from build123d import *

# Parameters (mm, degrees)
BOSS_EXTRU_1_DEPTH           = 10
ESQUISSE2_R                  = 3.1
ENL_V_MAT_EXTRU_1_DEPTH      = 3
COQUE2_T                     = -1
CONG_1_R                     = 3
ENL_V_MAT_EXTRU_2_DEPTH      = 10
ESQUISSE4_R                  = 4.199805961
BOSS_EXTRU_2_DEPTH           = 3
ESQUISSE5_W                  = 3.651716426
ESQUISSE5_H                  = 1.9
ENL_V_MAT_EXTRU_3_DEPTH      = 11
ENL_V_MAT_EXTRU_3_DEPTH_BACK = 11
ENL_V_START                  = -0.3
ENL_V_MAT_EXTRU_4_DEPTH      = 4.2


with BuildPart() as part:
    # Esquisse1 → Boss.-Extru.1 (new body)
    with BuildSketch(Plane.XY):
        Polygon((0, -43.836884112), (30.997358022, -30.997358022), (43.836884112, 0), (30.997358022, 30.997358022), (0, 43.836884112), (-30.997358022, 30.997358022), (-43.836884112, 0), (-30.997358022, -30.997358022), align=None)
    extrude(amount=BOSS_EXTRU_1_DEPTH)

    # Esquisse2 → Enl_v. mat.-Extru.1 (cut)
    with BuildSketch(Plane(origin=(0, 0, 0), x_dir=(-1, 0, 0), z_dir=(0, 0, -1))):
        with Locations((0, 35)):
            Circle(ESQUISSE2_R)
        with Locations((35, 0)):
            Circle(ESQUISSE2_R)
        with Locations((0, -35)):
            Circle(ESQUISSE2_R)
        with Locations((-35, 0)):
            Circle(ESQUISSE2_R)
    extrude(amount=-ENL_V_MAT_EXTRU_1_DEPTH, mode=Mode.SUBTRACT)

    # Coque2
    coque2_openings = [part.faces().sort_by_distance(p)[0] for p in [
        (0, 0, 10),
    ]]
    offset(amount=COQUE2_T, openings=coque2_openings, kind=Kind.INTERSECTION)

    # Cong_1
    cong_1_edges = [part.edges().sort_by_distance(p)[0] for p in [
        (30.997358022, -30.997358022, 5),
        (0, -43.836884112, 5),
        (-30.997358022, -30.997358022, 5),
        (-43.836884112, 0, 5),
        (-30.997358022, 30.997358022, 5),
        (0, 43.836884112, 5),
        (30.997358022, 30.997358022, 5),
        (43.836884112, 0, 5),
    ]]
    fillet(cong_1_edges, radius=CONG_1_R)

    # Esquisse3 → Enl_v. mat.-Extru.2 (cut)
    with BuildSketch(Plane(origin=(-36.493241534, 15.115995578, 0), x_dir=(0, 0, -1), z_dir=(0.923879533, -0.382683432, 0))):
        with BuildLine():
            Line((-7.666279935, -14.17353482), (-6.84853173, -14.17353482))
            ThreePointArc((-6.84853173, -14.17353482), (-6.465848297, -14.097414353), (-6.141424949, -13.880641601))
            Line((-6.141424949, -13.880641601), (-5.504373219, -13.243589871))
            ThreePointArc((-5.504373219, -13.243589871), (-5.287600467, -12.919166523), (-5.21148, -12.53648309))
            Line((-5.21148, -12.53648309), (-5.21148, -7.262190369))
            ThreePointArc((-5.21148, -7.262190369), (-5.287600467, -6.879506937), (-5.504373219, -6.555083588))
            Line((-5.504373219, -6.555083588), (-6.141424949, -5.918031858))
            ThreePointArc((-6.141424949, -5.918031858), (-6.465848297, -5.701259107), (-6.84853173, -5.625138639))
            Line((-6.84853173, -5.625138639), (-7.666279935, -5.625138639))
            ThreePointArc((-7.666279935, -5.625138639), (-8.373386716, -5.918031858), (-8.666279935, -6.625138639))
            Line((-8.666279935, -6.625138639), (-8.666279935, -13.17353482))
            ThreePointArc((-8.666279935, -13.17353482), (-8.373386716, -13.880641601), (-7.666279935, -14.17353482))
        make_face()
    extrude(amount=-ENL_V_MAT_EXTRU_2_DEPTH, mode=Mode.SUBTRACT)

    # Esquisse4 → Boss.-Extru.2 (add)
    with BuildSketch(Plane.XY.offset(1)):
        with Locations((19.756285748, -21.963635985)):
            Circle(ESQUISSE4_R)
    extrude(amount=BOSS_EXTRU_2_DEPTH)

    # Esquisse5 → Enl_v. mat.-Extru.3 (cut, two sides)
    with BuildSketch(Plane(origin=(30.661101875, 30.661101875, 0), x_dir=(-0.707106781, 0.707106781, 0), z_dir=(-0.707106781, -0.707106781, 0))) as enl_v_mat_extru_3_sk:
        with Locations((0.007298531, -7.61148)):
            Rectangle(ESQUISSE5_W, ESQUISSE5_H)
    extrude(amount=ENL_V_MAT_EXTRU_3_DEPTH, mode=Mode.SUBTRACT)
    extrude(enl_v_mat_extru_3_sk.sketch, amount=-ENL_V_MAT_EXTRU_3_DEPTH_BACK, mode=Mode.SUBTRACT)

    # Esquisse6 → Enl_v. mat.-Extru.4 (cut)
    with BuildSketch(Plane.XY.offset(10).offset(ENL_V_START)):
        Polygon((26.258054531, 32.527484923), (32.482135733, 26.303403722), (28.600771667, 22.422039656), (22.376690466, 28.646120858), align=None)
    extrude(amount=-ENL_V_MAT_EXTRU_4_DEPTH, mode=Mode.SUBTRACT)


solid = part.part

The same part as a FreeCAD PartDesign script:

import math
import FreeCAD as App
import Part
import Sketcher
Q = App.Units.Quantity


def edges_at(feature, points):
    """Names of the edges that pass closest to the given points."""
    edges = feature.Shape.Edges
    near = lambda p: min(range(len(edges)), key=lambda i: edges[i].distToShape(Part.Vertex(*p))[0])
    return sorted({f"Edge{near(p) + 1}" for p in points})


def faces_at(feature, points):
    """Names of the faces that lie closest to the given points."""
    faces = feature.Shape.Faces
    near = lambda p: min(range(len(faces)), key=lambda i: faces[i].distToShape(Part.Vertex(*p))[0])
    return sorted({f"Face{near(p) + 1}" for p in points})


def add_polygon(sketch, points):
    """Adds a closed chain of lines whose ends are joined by coincident constraints."""
    first, n = sketch.GeometryCount, len(points)
    for a, b in zip(points, points[1:] + points[:1]):
        sketch.addGeometry(Part.LineSegment(App.Vector(*a, 0), App.Vector(*b, 0)), False)
    for i in range(n):
        sketch.addConstraint(Sketcher.Constraint("Coincident", first + i, 2, first + (i + 1) % n, 1))

doc = App.newDocument("Part")
body = doc.addObject("PartDesign::Body", "Body")

# Sketch on XY plane
sketch1 = body.newObject("Sketcher::SketchObject", "Sketch")
sketch1.AttachmentSupport = (doc.getObject("XY_Plane"), [""])
sketch1.MapMode = "FlatFace"
add_polygon(sketch1, [(0, -44), (31, -31), (44, 0), (31, 31), (0, 44), (-31, 31), (-44, 0), (-31, -31)])  # lines 0-7
sketch1.addConstraint([
    Sketcher.Constraint("Symmetric", 0, 2, 4, 2, -1, 1),
    Sketcher.Constraint("Symmetric", 1, 2, 5, 2, -1, 1),
    Sketcher.Constraint("Symmetric", 2, 2, 6, 2, -1, 1),
    Sketcher.Constraint("Symmetric", 3, 2, 7, 2, -1, 1),
    Sketcher.Constraint("Symmetric", 2, 2, 4, 2, -2),
    Sketcher.Constraint("PointOnObject", 1, 2, -1),
    Sketcher.Constraint("PointOnObject", 3, 2, -2),
    Sketcher.Constraint("Perpendicular", 0, 2),
    Sketcher.Constraint("Equal", 0, 1),
    Sketcher.Constraint("Angle", 0, Q("22.5 deg")),
    Sketcher.Constraint("Distance", 0, 33.551299),
])
pad1 = body.newObject("PartDesign::Pad", "Pad")
pad1.Profile = sketch1
pad1.Length = 10

# Sketch on XY plane
sketch2 = body.newObject("Sketcher::SketchObject", "Sketch001")
sketch2.AttachmentSupport = (doc.getObject("XY_Plane"), [""])
sketch2.MapMode = "FlatFace"
sketch2.addGeometry([
    Part.Circle(App.Vector(0, 35, 0), App.Vector(0, 0, 1), 3.1),
    Part.Circle(App.Vector(-35, 0, 0), App.Vector(0, 0, 1), 3.1),
    Part.Circle(App.Vector(0, -35, 0), App.Vector(0, 0, 1), 3.1),
    Part.Circle(App.Vector(35, 0, 0), App.Vector(0, 0, 1), 3.1),
], False)
sketch2.addConstraint([
    Sketcher.Constraint("Equal", 0, 1),
    Sketcher.Constraint("Equal", 1, 2),
    Sketcher.Constraint("Equal", 2, 3),
    Sketcher.Constraint("Symmetric", 0, 3, 2, 3, -1, 1),
    Sketcher.Constraint("Symmetric", 1, 3, 3, 3, -1, 1),
    Sketcher.Constraint("PointOnObject", 0, 3, -2),
    Sketcher.Constraint("PointOnObject", 1, 3, -1),
    Sketcher.Constraint("Diameter", 0, 6.2),
    Sketcher.Constraint("DistanceY", -1, 1, 0, 3, 35.0),
    Sketcher.Constraint("DistanceX", 1, 3, -1, 1, 35.0),
])
pocket1 = body.newObject("PartDesign::Pocket", "Pocket")
pocket1.Profile = sketch2
pocket1.Length = 3
pocket1.Reversed = True
doc.recompute()

thickness = body.newObject("PartDesign::Thickness", "Thickness")
thickness.Base = (pocket1, faces_at(pocket1, [(0, 0, 10)]))
thickness.Value = 1
thickness.Reversed = True
thickness.Join = "Intersection"
doc.recompute()

fillet = body.newObject("PartDesign::Fillet", "Fillet")
fillet.Base = (thickness, edges_at(thickness, [
    (30.997, -30.997, 5),
    (0, -43.837, 5),
    (-30.997, -30.997, 5),
    (-43.837, 0, 5),
    (-30.997, 30.997, 5),
    (0, 43.837, 5),
    (30.997, 30.997, 5),
    (43.837, 0, 5),
]))
fillet.Radius = 3

# Sketch on an angled plane
sketch3 = body.newObject("Sketcher::SketchObject", "Sketch002")
sketch3.Placement = App.Placement(App.Vector(-36.493242, 15.115996, 0), App.Rotation(App.Vector(0, 0, -1), App.Vector(0.382683432, 0.923879533, 0), App.Vector(0.923879533, -0.382683432, 0), "ZXY"))
sketch3.addGeometry([
    Part.LineSegment(App.Vector(-7.7, -14.2, 0), App.Vector(-6.8, -14.2, 0)),  # 0
    Part.ArcOfCircle(Part.Circle(App.Vector(-6.8, -13.2, 0), App.Vector(0, 0, 1), 1), math.radians(-90), math.radians(-45)),  # 1
    Part.LineSegment(App.Vector(-6.1, -13.9, 0), App.Vector(-5.5, -13.2, 0)),  # 2
    Part.ArcOfCircle(Part.Circle(App.Vector(-6.2, -12.5, 0), App.Vector(0, 0, 1), 1), math.radians(-45), math.radians(0)),  # 3
    Part.LineSegment(App.Vector(-5.2, -12.5, 0), App.Vector(-5.2, -7.3, 0)),  # 4
    Part.ArcOfCircle(Part.Circle(App.Vector(-6.2, -7.3, 0), App.Vector(0, 0, 1), 1), math.radians(0), math.radians(45)),  # 5
    Part.LineSegment(App.Vector(-5.5, -6.6, 0), App.Vector(-6.1, -5.9, 0)),  # 6
    Part.ArcOfCircle(Part.Circle(App.Vector(-6.8, -6.6, 0), App.Vector(0, 0, 1), 1), math.radians(45), math.radians(90)),  # 7
    Part.LineSegment(App.Vector(-6.8, -5.6, 0), App.Vector(-7.7, -5.6, 0)),  # 8
    Part.ArcOfCircle(Part.Circle(App.Vector(-7.7, -6.6, 0), App.Vector(0, 0, 1), 1), math.radians(90), math.radians(180)),  # 9
    Part.LineSegment(App.Vector(-8.7, -6.6, 0), App.Vector(-8.7, -13.2, 0)),  # 10
    Part.ArcOfCircle(Part.Circle(App.Vector(-7.7, -13.2, 0), App.Vector(0, 0, 1), 1), math.radians(-180), math.radians(-90)),  # 11
], False)
sketch3.addConstraint([
    Sketcher.Constraint("Tangent", 0, 2, 1, 1),
    Sketcher.Constraint("Tangent", 1, 2, 2, 1),
    Sketcher.Constraint("Tangent", 2, 2, 3, 1),
    Sketcher.Constraint("Tangent", 3, 2, 4, 1),
    Sketcher.Constraint("Tangent", 4, 2, 5, 1),
    Sketcher.Constraint("Tangent", 5, 2, 6, 1),
    Sketcher.Constraint("Tangent", 6, 2, 7, 1),
    Sketcher.Constraint("Tangent", 7, 2, 8, 1),
    Sketcher.Constraint("Tangent", 8, 2, 9, 1),
    Sketcher.Constraint("Tangent", 9, 2, 10, 1),
    Sketcher.Constraint("Tangent", 10, 2, 11, 1),
    Sketcher.Constraint("Tangent", 11, 2, 0, 1),
    Sketcher.Constraint("Horizontal", 0),
    Sketcher.Constraint("Vertical", 4),
    Sketcher.Constraint("Horizontal", 8),
    Sketcher.Constraint("Vertical", 10),
    Sketcher.Constraint("Equal", 1, 3),
    Sketcher.Constraint("Equal", 3, 5),
    Sketcher.Constraint("Equal", 5, 7),
    Sketcher.Constraint("Equal", 7, 9),
    Sketcher.Constraint("Equal", 9, 11),
    Sketcher.Constraint("Perpendicular", 2, 6),
    Sketcher.Constraint("Vertical", 1, 3, 7, 3),
    Sketcher.Constraint("Vertical", 2, 2, 5, 2),
    Sketcher.Constraint("Radius", 1, 1.0),
    Sketcher.Constraint("DistanceX", 0, 1, 0, 2, 0.817748),
    Sketcher.Constraint("DistanceX", 9, 3, 5, 3, 1.4548),
    Sketcher.Constraint("DistanceY", 3, 2, 5, 2, 5.9814),
    Sketcher.Constraint("DistanceX", 1, 3, -1, 1, 6.848532),
    Sketcher.Constraint("DistanceY", 5, 3, -1, 1, 7.26219),
])
pocket2 = body.newObject("PartDesign::Pocket", "Pocket001")
pocket2.Profile = sketch3
pocket2.Length = 10

# Sketch on XY plane
sketch4 = body.newObject("Sketcher::SketchObject", "Sketch003")
sketch4.AttachmentSupport = (doc.getObject("XY_Plane"), [""])
sketch4.MapMode = "FlatFace"
sketch4.AttachmentOffset = App.Placement(App.Vector(0, 0, 1), App.Rotation())
sketch4.addGeometry(Part.Circle(App.Vector(19.8, -22, 0), App.Vector(0, 0, 1), 4.2), False)
sketch4.addConstraint([
    Sketcher.Constraint("Diameter", 0, 8.399612),
    Sketcher.Constraint("DistanceX", -1, 1, 0, 3, 19.756286),
    Sketcher.Constraint("DistanceY", 0, 3, -1, 1, 21.963636),
])
pad2 = body.newObject("PartDesign::Pad", "Pad001")
pad2.Profile = sketch4
pad2.Length = 3

# Sketch on an angled plane
sketch5 = body.newObject("Sketcher::SketchObject", "Sketch004")
sketch5.Placement = App.Placement(App.Vector(30.661102, 30.661102, 0), App.Rotation(App.Vector(-0.707106781, 0.707106781, 0), App.Vector(0, 0, -0.999999999), App.Vector(-0.707106781, -0.707106781, 0), "ZXY"))
add_polygon(sketch5, [(-1.8, -6.7), (-1.8, -8.6), (1.8, -8.6), (1.8, -6.7)])  # lines 0-3
sketch5.addConstraint([
    Sketcher.Constraint("Vertical", 0),
    Sketcher.Constraint("Horizontal", 1),
    Sketcher.Constraint("Vertical", 2),
    Sketcher.Constraint("Horizontal", 3),
    Sketcher.Constraint("DistanceY", 0, 2, 0, 1, 1.9),
    Sketcher.Constraint("DistanceX", 1, 1, 1, 2, 3.651716),
    Sketcher.Constraint("DistanceX", 0, 2, -1, 1, 1.81856),
    Sketcher.Constraint("DistanceY", 0, 2, -1, 1, 8.56148),
])
pocket3 = body.newObject("PartDesign::Pocket", "Pocket002")
pocket3.Profile = sketch5
pocket3.Type = "TwoLengths"
pocket3.Length = 11
pocket3.Length2 = 11
pocket3.Reversed = True

# Sketch on XY plane
sketch6 = body.newObject("Sketcher::SketchObject", "Sketch005")
sketch6.AttachmentSupport = (doc.getObject("XY_Plane"), [""])
sketch6.MapMode = "FlatFace"
sketch6.AttachmentOffset = App.Placement(App.Vector(0, 0, 9.7), App.Rotation())
add_polygon(sketch6, [(32, 26), (26, 33), (22, 29), (29, 22)])  # lines 0-3
sketch6.addConstraint([
    Sketcher.Constraint("Perpendicular", 0, 1),
    Sketcher.Constraint("Perpendicular", 1, 2),
    Sketcher.Constraint("Perpendicular", 2, 3),
    Sketcher.Constraint("Angle", 0, Q("135 deg")),
    Sketcher.Constraint("Distance", 0, 8.80218),
    Sketcher.Constraint("DistanceX", -1, 1, 1, 2, 22.37669),
    Sketcher.Constraint("DistanceY", -1, 1, 1, 2, 28.646121),
    Sketcher.Constraint("Distance", 1, 5.489078),
])
pocket4 = body.newObject("PartDesign::Pocket", "Pocket003")
pocket4.Profile = sketch6
pocket4.Length = 4.2

doc.recompute()
